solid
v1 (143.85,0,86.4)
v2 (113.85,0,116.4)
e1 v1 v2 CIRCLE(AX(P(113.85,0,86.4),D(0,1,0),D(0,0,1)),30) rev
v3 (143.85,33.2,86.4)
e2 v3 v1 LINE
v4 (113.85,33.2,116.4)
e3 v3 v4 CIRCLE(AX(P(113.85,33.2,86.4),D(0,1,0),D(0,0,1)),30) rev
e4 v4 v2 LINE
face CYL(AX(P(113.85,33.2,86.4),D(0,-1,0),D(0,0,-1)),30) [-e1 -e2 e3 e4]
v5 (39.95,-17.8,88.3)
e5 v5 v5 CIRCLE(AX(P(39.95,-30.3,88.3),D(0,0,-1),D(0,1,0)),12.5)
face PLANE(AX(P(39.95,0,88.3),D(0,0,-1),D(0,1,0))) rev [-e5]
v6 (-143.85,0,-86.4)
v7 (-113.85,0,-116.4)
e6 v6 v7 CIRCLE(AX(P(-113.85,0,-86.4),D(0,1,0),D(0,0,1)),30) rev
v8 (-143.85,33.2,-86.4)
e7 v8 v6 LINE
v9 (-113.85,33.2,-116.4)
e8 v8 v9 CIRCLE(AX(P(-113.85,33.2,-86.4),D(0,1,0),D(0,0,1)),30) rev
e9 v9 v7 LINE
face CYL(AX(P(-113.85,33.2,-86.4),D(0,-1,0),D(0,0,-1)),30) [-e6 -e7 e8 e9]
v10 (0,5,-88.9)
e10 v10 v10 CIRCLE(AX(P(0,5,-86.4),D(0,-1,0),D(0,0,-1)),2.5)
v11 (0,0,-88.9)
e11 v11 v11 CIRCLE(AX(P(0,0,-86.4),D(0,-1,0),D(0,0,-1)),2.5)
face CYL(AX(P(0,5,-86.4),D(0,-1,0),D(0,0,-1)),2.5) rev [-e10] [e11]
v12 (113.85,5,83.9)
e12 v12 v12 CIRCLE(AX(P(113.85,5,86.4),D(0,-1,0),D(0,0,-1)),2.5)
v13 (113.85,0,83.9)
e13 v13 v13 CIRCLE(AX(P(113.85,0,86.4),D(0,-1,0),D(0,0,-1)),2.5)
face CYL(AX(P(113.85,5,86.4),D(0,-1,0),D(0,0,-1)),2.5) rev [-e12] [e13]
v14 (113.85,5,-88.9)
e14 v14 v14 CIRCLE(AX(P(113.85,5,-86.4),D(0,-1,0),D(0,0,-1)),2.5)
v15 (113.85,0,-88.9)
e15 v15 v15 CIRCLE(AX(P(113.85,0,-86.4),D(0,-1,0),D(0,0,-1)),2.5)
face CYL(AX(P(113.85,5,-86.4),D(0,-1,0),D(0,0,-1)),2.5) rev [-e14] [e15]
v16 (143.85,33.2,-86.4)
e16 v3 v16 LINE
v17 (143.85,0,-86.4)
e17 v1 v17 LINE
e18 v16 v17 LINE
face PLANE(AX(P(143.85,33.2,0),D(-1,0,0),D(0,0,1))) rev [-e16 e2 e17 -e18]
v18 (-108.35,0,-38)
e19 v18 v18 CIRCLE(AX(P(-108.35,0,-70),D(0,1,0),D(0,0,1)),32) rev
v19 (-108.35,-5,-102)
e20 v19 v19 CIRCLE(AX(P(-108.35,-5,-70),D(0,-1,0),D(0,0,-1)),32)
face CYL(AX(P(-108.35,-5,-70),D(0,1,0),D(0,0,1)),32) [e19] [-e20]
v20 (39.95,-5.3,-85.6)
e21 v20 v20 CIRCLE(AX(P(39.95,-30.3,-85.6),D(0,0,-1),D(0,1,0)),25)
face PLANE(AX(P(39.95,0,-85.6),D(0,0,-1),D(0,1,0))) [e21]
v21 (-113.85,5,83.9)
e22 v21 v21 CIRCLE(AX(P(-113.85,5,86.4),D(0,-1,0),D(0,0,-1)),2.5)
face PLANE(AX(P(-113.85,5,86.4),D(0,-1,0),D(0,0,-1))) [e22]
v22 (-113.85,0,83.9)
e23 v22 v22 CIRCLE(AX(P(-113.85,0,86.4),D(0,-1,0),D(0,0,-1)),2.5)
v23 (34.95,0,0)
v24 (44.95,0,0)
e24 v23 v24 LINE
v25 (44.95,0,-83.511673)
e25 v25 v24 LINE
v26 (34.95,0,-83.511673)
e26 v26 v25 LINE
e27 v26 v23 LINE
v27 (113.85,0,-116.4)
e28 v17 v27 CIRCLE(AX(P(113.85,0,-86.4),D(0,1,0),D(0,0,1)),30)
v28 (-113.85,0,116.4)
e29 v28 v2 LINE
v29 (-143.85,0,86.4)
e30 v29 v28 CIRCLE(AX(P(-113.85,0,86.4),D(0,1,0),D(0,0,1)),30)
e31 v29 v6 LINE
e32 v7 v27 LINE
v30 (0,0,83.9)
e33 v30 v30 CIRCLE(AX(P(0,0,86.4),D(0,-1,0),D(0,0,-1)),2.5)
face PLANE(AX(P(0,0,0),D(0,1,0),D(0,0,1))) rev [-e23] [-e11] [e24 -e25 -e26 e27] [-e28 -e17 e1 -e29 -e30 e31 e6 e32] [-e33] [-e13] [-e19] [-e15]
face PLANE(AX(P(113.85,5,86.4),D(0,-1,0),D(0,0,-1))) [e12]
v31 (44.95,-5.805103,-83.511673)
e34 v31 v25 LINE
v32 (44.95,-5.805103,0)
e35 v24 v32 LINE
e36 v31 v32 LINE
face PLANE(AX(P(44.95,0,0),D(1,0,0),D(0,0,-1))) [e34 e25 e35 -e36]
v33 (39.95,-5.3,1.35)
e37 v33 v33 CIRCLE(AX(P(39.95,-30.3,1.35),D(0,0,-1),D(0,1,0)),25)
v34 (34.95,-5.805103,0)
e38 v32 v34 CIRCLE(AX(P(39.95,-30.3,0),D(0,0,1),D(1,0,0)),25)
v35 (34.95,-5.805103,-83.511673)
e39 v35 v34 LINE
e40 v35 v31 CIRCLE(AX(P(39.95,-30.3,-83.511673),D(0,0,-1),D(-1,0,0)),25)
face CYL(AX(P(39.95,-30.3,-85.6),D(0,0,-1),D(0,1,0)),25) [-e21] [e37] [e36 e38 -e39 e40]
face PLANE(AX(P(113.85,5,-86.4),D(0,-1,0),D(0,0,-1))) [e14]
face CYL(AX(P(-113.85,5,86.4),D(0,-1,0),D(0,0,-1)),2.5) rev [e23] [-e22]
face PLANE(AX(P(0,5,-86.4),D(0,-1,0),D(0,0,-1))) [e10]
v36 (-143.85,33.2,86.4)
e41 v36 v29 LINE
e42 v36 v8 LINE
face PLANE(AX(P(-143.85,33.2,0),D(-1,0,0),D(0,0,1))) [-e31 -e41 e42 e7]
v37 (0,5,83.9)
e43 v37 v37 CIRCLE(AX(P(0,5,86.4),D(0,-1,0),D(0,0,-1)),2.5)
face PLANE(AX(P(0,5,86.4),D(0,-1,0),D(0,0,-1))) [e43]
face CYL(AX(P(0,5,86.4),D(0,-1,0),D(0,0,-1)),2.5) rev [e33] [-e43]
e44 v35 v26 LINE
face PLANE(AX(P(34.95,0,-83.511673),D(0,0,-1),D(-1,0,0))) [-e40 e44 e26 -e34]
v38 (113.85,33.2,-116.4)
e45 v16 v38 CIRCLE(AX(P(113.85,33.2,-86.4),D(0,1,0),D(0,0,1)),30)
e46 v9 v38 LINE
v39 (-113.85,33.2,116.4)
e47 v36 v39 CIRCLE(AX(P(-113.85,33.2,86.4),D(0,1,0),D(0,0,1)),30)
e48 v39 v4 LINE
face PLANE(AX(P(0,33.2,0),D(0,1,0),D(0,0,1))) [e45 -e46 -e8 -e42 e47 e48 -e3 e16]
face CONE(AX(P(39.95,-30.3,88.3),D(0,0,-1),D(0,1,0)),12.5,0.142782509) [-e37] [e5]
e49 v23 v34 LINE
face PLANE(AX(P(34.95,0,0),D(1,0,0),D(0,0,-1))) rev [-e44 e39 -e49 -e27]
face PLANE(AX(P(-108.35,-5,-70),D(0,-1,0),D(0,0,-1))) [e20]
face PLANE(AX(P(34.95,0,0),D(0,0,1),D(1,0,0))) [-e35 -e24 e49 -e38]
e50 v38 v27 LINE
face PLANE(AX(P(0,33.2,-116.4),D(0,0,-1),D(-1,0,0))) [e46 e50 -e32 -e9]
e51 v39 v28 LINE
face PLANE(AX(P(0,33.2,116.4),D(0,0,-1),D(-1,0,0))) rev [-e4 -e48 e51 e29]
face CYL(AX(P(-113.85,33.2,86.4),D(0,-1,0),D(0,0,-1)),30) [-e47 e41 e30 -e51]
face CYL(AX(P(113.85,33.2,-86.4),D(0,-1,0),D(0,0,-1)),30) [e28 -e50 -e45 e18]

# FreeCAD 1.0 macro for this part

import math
import FreeCAD as App
import Part
import Sketcher
from FreeCAD import Vector

doc = App.newDocument("Part")
body = doc.addObject("PartDesign::Body", "Body")

# Sketch on XZ plane
sketch1 = doc.addObject("Sketcher::SketchObject", "Sketch")
body.addObject(sketch1)
sketch1.AttachmentSupport = (doc.XZ_Plane, [""])
sketch1.MapMode = "FlatFace"
sketch1.addGeometry([
    Part.ArcOfCircle(Part.Circle(Vector(-113.85, 86.4, 0), Vector(0, 0, 1), 30), math.radians(90), math.radians(180)),  # 0
    Part.LineSegment(Vector(-113.85, 116.4, 0), Vector(113.85, 116.4, 0)),  # 1
    Part.ArcOfCircle(Part.Circle(Vector(113.85, 86.4, 0), Vector(0, 0, 1), 30), math.radians(0), math.radians(90)),  # 2
    Part.LineSegment(Vector(143.85, 86.4, 0), Vector(143.85, -86.4, 0)),  # 3
    Part.ArcOfCircle(Part.Circle(Vector(113.85, -86.4, 0), Vector(0, 0, 1), 30), math.radians(-90), math.radians(0)),  # 4
    Part.LineSegment(Vector(113.85, -116.4, 0), Vector(-113.85, -116.4, 0)),  # 5
    Part.ArcOfCircle(Part.Circle(Vector(-113.85, -86.4, 0), Vector(0, 0, 1), 30), math.radians(180), math.radians(270)),  # 6
    Part.LineSegment(Vector(-143.85, -86.4, 0), Vector(-143.85, 86.4, 0)),  # 7
], False)
sketch1.addConstraint([
    Sketcher.Constraint("Tangent", 0, 1, 1, 1),
    Sketcher.Constraint("Tangent", 1, 2, 2, 2),
    Sketcher.Constraint("Tangent", 2, 1, 3, 1),
    Sketcher.Constraint("Tangent", 3, 2, 4, 2),
    Sketcher.Constraint("Tangent", 4, 1, 5, 1),
    Sketcher.Constraint("Tangent", 5, 2, 6, 2),
    Sketcher.Constraint("Tangent", 6, 1, 7, 1),
    Sketcher.Constraint("Tangent", 7, 2, 0, 2),
    Sketcher.Constraint("Horizontal", 1),
    Sketcher.Constraint("Vertical", 3),
    Sketcher.Constraint("Horizontal", 5),
    Sketcher.Constraint("Vertical", 7),
    Sketcher.Constraint("Equal", 0, 2),
    Sketcher.Constraint("Equal", 2, 4),
    Sketcher.Constraint("Equal", 4, 6),
    Sketcher.Constraint("Symmetric", 0, 3, 4, 3, -1, 1),
    Sketcher.Constraint("Radius", 0, 30.0),
    Sketcher.Constraint("DistanceX", 1, 1, 1, 2, 227.7),
    Sketcher.Constraint("DistanceY", 3, 2, 3, 1, 172.8),
])
pad1 = doc.addObject("PartDesign::Pad", "Pad")
body.addObject(pad1)
pad1.Profile = sketch1
pad1.Length = 33.2
pad1.Reversed = True
body2 = doc.addObject("PartDesign::Body", "Body001")

# Sketch on YZ plane
sketch2 = doc.addObject("Sketcher::SketchObject", "Sketch001")
body2.addObject(sketch2)
sketch2.AttachmentSupport = (doc.getObject("YZ_Plane001"), [""])
sketch2.MapMode = "FlatFace"
sketch2.AttachmentOffset = App.Placement(Vector(0, 0, 39.95), App.Rotation())
sketch2.addGeometry([
    Part.LineSegment(Vector(-30.3, -85.6, 0), Vector(-5.3, -85.6, 0)),  # 0
    Part.LineSegment(Vector(-5.3, -85.6, 0), Vector(-5.3, 1.35, 0)),  # 1
    Part.LineSegment(Vector(-5.3, 1.35, 0), Vector(-17.8, 88.3, 0)),  # 2
    Part.LineSegment(Vector(-17.8, 88.3, 0), Vector(-30.3, 88.3, 0)),  # 3
    Part.LineSegment(Vector(-30.3, 88.3, 0), Vector(-30.3, -85.6, 0)),  # 4
], False)
sketch2.addGeometry(Part.LineSegment(Vector(-30.3, -85.6, 0), Vector(-30.3, 88.3, 0)), True)  # axis
sketch2.addConstraint([
    Sketcher.Constraint("Coincident", 0, 2, 1, 1),
    Sketcher.Constraint("Coincident", 1, 2, 2, 1),
    Sketcher.Constraint("Coincident", 2, 2, 3, 1),
    Sketcher.Constraint("Coincident", 3, 2, 4, 1),
    Sketcher.Constraint("Coincident", 4, 2, 0, 1),
    Sketcher.Constraint("Horizontal", 0),
    Sketcher.Constraint("Vertical", 1),
    Sketcher.Constraint("Horizontal", 3),
    Sketcher.Constraint("Vertical", 4),
    Sketcher.Constraint("Vertical", 5),
    Sketcher.Constraint("Coincident", 5, 1, 4, 2),
    Sketcher.Constraint("Horizontal", 2, 2, 5, 2),
    Sketcher.Constraint("DistanceX", 0, 1, 0, 2, 25.0),
    Sketcher.Constraint("DistanceX", 3, 2, 3, 1, 12.5),
    Sketcher.Constraint("DistanceY", 4, 2, 4, 1, 173.9),
    Sketcher.Constraint("DistanceY", 1, 1, 1, 2, 86.95),
    Sketcher.Constraint("DistanceX", 0, 2, -1, 1, 5.3),
    Sketcher.Constraint("DistanceY", 0, 2, -1, 1, 85.6),
])
revolution = doc.addObject("PartDesign::Revolution", "Revolution")
body2.addObject(revolution)
revolution.Profile = sketch2
revolution.ReferenceAxis = (sketch2, ["Axis0"])
revolution.Angle = 360
body.AllowCompound = True
doc.recompute()

boolean = doc.addObject("PartDesign::Boolean", "Boolean")
body.addObject(boolean)
boolean.Type = "Fuse"
boolean.addObjects([body2])

# Sketch on YZ plane
sketch3 = doc.addObject("Sketcher::SketchObject", "Sketch002")
body.addObject(sketch3)
sketch3.AttachmentSupport = (doc.YZ_Plane, [""])
sketch3.MapMode = "FlatFace"
sketch3.AttachmentOffset = App.Placement(Vector(0, 0, 39.95), App.Rotation())
sketch3.addGeometry([
    Part.LineSegment(Vector(0, 0, 0), Vector(-9.134616, 0, 0)),
    Part.LineSegment(Vector(-9.134616, 0, 0), Vector(-9.134616, -83.511673, 0)),
    Part.LineSegment(Vector(-9.134616, -83.511673, 0), Vector(0, -83.511673, 0)),
    Part.LineSegment(Vector(0, -83.511673, 0), Vector(0, 0, 0)),
], False)
sketch3.addConstraint([
    Sketcher.Constraint("Coincident", 0, 2, 1, 1),
    Sketcher.Constraint("Coincident", 1, 2, 2, 1),
    Sketcher.Constraint("Coincident", 2, 2, 3, 1),
    Sketcher.Constraint("Coincident", 3, 2, 0, 1),
    Sketcher.Constraint("Horizontal", 0),
    Sketcher.Constraint("Vertical", 1),
    Sketcher.Constraint("Horizontal", 2),
    Sketcher.Constraint("Vertical", 3),
    Sketcher.Constraint("Coincident", 3, 2, -1, 1),
    Sketcher.Constraint("DistanceX", 0, 2, 0, 1, 9.134616),
    Sketcher.Constraint("DistanceY", 1, 2, 1, 1, 83.511673),
])
pad2 = doc.addObject("PartDesign::Pad", "Pad001")
body.addObject(pad2)
pad2.Profile = sketch3
pad2.Type = "TwoLengths"
pad2.Length = 5
pad2.Length2 = 5

# Sketch on XZ plane
sketch4 = doc.addObject("Sketcher::SketchObject", "Sketch003")
body.addObject(sketch4)
sketch4.AttachmentSupport = (doc.XZ_Plane, [""])
sketch4.MapMode = "FlatFace"
sketch4.addGeometry(Part.Circle(Vector(-108.35, -70, 0), Vector(0, 0, 1), 32), False)
sketch4.addConstraint([
    Sketcher.Constraint("Diameter", 0, 64.0),
    Sketcher.Constraint("DistanceY", 0, 3, -1, 1, 70.0),
    Sketcher.Constraint("DistanceX", 0, 3, -1, 1, 108.35),
])
pad3 = doc.addObject("PartDesign::Pad", "Pad002")
body.addObject(pad3)
pad3.Profile = sketch4
pad3.Length = 5

# Sketch on XZ plane
sketch5 = doc.addObject("Sketcher::SketchObject", "Sketch004")
body.addObject(sketch5)
sketch5.AttachmentSupport = (doc.XZ_Plane, [""])
sketch5.MapMode = "FlatFace"
sketch5.addGeometry([
    Part.Circle(Vector(113.85, -86.4, 0), Vector(0, 0, 1), 2.5),  # 0
    Part.Circle(Vector(0, -86.4, 0), Vector(0, 0, 1), 2.5),  # 1
    Part.Circle(Vector(113.85, 86.4, 0), Vector(0, 0, 1), 2.5),  # 2
    Part.Circle(Vector(0, 86.4, 0), Vector(0, 0, 1), 2.5),  # 3
    Part.Circle(Vector(-113.85, 86.4, 0), Vector(0, 0, 1), 2.5),  # 4
], False)
sketch5.addConstraint([
    Sketcher.Constraint("Equal", 0, 1),
    Sketcher.Constraint("Equal", 1, 2),
    Sketcher.Constraint("Equal", 2, 3),
    Sketcher.Constraint("Equal", 3, 4),
    Sketcher.Constraint("Symmetric", 1, 3, 3, 3, -1, 1),
    Sketcher.Constraint("Symmetric", 0, 3, 4, 3, -1, 1),
    Sketcher.Constraint("Symmetric", 2, 3, 4, 3, -2),
    Sketcher.Constraint("PointOnObject", 1, 3, -2),
    Sketcher.Constraint("Horizontal", 0, 3, 1, 3),
    Sketcher.Constraint("Diameter", 0, 5.0),
    Sketcher.Constraint("DistanceY", 0, 3, -1, 1, 86.4),
    Sketcher.Constraint("DistanceX", 4, 3, 2, 3, 227.7),
])
pocket1 = doc.addObject("PartDesign::Pocket", "Pocket")
body.addObject(pocket1)
pocket1.Profile = sketch5
pocket1.Length = 5

doc.recompute()
